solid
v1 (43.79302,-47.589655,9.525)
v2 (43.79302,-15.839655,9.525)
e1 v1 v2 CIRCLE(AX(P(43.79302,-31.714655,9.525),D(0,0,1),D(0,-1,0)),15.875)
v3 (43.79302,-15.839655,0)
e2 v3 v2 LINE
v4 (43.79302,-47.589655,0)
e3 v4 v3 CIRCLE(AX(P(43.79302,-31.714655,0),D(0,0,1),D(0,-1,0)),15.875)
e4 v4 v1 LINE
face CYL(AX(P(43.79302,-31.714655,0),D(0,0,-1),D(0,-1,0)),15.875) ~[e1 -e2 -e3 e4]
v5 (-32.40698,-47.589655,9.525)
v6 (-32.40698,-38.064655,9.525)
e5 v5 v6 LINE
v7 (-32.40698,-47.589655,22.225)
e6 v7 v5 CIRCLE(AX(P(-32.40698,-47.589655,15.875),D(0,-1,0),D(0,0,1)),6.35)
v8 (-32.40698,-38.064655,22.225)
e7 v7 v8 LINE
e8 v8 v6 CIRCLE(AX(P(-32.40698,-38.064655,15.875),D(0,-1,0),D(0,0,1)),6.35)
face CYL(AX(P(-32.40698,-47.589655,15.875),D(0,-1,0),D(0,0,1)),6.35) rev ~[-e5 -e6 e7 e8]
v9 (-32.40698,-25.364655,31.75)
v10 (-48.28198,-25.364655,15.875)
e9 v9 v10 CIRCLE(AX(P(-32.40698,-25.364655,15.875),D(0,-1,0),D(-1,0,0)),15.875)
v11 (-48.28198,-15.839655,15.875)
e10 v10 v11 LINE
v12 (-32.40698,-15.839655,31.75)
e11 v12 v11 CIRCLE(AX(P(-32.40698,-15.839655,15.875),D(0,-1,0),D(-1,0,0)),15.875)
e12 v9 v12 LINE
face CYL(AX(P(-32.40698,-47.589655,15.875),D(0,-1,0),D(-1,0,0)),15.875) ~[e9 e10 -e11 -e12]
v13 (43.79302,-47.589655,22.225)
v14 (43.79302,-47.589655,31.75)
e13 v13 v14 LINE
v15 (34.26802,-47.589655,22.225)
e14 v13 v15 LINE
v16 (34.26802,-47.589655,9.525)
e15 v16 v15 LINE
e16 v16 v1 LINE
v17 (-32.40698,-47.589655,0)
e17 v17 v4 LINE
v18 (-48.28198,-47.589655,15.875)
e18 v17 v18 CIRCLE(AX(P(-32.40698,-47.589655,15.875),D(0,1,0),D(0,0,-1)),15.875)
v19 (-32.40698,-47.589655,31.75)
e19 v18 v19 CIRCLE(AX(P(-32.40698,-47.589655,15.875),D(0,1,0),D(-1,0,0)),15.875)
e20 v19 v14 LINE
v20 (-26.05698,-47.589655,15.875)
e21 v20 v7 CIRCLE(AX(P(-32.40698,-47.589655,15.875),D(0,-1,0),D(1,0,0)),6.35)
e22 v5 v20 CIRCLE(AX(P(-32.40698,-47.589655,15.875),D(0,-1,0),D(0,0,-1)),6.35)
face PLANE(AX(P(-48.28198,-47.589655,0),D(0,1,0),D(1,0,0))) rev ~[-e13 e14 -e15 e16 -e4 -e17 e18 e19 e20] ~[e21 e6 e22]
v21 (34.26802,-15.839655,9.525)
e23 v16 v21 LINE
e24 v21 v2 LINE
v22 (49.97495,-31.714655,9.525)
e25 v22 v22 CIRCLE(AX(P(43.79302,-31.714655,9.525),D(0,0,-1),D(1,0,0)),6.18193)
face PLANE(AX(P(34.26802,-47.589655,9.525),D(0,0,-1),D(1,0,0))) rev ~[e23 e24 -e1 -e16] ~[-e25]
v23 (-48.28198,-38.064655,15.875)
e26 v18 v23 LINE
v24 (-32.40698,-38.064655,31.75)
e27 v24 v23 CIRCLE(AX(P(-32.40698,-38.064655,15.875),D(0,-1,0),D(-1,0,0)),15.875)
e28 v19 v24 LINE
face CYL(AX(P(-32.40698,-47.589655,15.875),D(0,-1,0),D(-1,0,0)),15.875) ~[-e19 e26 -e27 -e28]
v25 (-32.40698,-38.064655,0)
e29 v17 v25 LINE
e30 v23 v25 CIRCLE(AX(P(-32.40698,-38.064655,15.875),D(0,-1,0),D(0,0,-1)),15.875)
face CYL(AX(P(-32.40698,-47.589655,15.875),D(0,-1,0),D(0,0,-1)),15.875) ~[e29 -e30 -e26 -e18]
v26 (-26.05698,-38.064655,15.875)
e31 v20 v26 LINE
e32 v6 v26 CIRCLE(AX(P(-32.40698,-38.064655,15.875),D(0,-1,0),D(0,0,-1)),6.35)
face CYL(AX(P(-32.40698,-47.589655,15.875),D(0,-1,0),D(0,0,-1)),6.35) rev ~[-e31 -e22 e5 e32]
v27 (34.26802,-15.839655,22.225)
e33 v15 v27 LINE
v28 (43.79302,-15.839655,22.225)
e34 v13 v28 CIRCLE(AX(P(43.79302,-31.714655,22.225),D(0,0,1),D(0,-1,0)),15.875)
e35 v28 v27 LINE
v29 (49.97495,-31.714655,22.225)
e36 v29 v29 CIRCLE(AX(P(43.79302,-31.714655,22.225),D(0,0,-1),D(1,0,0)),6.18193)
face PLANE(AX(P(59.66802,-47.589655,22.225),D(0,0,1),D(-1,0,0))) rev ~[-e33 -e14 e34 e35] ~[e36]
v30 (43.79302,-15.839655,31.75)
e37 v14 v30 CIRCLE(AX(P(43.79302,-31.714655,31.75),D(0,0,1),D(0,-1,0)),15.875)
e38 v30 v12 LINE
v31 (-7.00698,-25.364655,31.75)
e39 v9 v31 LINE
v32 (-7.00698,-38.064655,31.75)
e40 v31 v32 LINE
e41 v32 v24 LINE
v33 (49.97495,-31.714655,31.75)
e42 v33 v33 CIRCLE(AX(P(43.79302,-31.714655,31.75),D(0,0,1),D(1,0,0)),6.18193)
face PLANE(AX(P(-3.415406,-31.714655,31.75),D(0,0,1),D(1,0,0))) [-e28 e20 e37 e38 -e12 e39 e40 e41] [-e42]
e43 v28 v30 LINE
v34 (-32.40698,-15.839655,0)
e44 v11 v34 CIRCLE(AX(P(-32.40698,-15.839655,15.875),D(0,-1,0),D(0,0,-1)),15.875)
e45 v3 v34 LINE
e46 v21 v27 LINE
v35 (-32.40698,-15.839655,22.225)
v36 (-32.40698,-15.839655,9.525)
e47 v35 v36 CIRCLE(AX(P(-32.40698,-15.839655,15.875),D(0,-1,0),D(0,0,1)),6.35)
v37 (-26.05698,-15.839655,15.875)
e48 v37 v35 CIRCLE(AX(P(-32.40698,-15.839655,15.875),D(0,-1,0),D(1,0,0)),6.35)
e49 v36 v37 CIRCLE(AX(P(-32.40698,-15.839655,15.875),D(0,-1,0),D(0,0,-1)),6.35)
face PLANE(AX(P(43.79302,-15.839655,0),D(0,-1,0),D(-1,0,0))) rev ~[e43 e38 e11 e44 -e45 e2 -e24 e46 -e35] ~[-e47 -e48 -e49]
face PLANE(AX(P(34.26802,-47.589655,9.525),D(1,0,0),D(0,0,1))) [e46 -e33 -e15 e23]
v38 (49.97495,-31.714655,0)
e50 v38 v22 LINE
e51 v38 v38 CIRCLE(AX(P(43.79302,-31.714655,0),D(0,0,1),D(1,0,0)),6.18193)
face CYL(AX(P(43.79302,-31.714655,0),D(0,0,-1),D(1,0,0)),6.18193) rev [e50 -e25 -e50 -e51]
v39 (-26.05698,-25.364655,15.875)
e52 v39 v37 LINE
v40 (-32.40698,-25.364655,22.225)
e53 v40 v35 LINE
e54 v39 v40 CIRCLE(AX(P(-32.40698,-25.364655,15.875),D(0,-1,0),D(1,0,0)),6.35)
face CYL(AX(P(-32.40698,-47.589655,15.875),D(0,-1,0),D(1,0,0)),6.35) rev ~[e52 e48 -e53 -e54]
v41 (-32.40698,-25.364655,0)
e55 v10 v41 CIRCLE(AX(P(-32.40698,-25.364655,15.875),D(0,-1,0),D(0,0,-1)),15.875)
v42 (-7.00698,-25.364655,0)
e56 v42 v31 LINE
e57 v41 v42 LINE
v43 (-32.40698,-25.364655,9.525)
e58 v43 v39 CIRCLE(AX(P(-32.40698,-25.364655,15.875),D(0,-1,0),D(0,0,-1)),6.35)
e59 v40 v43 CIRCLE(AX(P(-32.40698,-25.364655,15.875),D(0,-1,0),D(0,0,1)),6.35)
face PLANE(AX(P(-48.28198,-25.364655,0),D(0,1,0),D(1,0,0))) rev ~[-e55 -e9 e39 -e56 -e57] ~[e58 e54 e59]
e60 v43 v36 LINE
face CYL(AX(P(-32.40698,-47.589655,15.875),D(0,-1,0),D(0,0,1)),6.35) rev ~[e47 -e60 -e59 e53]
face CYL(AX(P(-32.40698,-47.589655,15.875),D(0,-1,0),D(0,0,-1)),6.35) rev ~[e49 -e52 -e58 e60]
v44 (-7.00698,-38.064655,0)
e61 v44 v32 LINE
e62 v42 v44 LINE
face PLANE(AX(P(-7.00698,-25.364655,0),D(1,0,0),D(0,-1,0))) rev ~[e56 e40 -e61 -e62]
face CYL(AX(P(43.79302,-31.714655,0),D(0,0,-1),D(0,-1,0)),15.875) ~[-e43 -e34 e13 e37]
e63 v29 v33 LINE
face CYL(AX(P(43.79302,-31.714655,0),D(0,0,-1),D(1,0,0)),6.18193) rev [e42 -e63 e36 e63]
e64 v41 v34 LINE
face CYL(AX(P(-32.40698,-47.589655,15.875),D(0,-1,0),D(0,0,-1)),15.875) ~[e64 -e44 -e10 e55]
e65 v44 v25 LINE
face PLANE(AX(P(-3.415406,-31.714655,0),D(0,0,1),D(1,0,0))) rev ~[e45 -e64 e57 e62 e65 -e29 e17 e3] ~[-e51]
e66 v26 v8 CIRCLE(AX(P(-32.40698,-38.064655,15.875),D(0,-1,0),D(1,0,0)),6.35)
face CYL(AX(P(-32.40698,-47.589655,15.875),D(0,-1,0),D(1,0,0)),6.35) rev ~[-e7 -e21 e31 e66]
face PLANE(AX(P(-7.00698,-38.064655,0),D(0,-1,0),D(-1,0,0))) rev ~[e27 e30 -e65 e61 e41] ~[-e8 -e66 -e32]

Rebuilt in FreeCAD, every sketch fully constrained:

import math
import FreeCAD as App
import Part
import Sketcher
Q = App.Units.Quantity


def add_polygon(sketch, points):
    """Adds a closed chain of lines whose ends are joined by coincident constraints."""
    first, n = sketch.GeometryCount, len(points)
    for a, b in zip(points, points[1:] + points[:1]):
        sketch.addGeometry(Part.LineSegment(App.Vector(*a, 0), App.Vector(*b, 0)), False)
    for i in range(n):
        sketch.addConstraint(Sketcher.Constraint("Coincident", first + i, 2, first + (i + 1) % n, 1))

doc = App.newDocument("Part")
params = doc.addObject("Spreadsheet::Sheet", "Params")
for row, (alias, value) in enumerate([
    ("sketch1_height", "0.5 in"),
    ("sketch1_radius", "0.625 in"),
    ("sketch1_width", "3.625 in"),
    ("pad1_length", "1.25 in"),
    ("sketch2_radius", "0.25 in"),
    ("sketch3_width", "1 in"),
    ("sketch3_height", "0.5 in"),
    ("sketch4_radius", "0.625 in"),
], start=1):
    params.set(f"A{row}", alias)
    params.set(f"B{row}", "=" + value)
    params.setAlias(f"B{row}", alias)

body = doc.addObject("PartDesign::Body", "Body")

# Sketch on XY plane
sketch1 = doc.addObject("Sketcher::SketchObject", "Sketch")
body.addObject(sketch1)
sketch1.AttachmentSupport = (doc.XY_Plane, [""])
sketch1.MapMode = "FlatFace"
sketch1.addGeometry([
    Part.LineSegment(App.Vector(44, -16, 0), App.Vector(-48, -16, 0)),  # 0
    Part.LineSegment(App.Vector(-48, -16, 0), App.Vector(-48, -25, 0)),  # 1
    Part.LineSegment(App.Vector(-48, -25, 0), App.Vector(-7, -25, 0)),  # 2
    Part.LineSegment(App.Vector(-7, -25, 0), App.Vector(-7, -38, 0)),  # 3
    Part.LineSegment(App.Vector(-7, -38, 0), App.Vector(-48, -38, 0)),  # 4
    Part.LineSegment(App.Vector(-48, -38, 0), App.Vector(-48, -48, 0)),  # 5
    Part.LineSegment(App.Vector(-48, -48, 0), App.Vector(44, -48, 0)),  # 6
    Part.ArcOfCircle(Part.Circle(App.Vector(44, -32, 0), App.Vector(0, 0, 1), 16), math.radians(-90), math.radians(90)),  # 7
    Part.Circle(App.Vector(44, -32, 0), App.Vector(0, 0, 1), 6),  # 8
], False)
sketch1.addConstraint([
    Sketcher.Constraint("Coincident", 0, 2, 1, 1),
    Sketcher.Constraint("Coincident", 1, 2, 2, 1),
    Sketcher.Constraint("Coincident", 2, 2, 3, 1),
    Sketcher.Constraint("Coincident", 3, 2, 4, 1),
    Sketcher.Constraint("Coincident", 4, 2, 5, 1),
    Sketcher.Constraint("Coincident", 5, 2, 6, 1),
    Sketcher.Constraint("Tangent", 6, 2, 7, 1),
    Sketcher.Constraint("Tangent", 7, 2, 0, 1),
    Sketcher.Constraint("Horizontal", 0),
    Sketcher.Constraint("Vertical", 1),
    Sketcher.Constraint("Horizontal", 2),
    Sketcher.Constraint("Vertical", 3),
    Sketcher.Constraint("Horizontal", 4),
    Sketcher.Constraint("Vertical", 5),
    Sketcher.Constraint("Horizontal", 6),
    Sketcher.Constraint("Coincident", 8, 3, 7, 3),
    Sketcher.Constraint("Vertical", 1, 2, 4, 2),
    Sketcher.Constraint("Equal", 1, 5),
    Sketcher.Constraint("DistanceY", 3, 2, 3, 1, Q("0.5 in")),
    Sketcher.Constraint("Radius", 7, Q("0.625 in")),
    Sketcher.Constraint("DistanceX", 2, 2, 7, 3, Q("2 in")),
    Sketcher.Constraint("DistanceX", 0, 2, 0, 1, Q("3.625 in")),
    Sketcher.Constraint("Diameter", 8, Q("12.36386 mm")),
    Sketcher.Constraint("DistanceX", -1, 1, 7, 3, Q("43.79302 mm")),
    Sketcher.Constraint("DistanceY", 7, 3, -1, 1, Q("31.714655 mm")),
])
sketch1.setExpression("Constraints[18]", "Params.sketch1_height")
sketch1.setExpression("Constraints[19]", "Params.sketch1_radius")
sketch1.setExpression("Constraints[21]", "Params.sketch1_width")
pad1 = doc.addObject("PartDesign::Pad", "Pad")
body.addObject(pad1)
pad1.Profile = sketch1
pad1.setExpression("Length", "Params.pad1_length")

# Sketch on XZ plane
sketch2 = doc.addObject("Sketcher::SketchObject", "Sketch001")
body.addObject(sketch2)
sketch2.AttachmentSupport = (doc.XZ_Plane, [""])
sketch2.MapMode = "FlatFace"
sketch2.AttachmentOffset = App.Placement(App.Vector(0, 0, 47.589655), App.Rotation())
sketch2.addGeometry([
    Part.ArcOfCircle(Part.Circle(App.Vector(-32, 16, 0), App.Vector(0, 0, 1), 6), math.radians(90), math.radians(270)),
    Part.ArcOfCircle(Part.Circle(App.Vector(-32, 16, 0), App.Vector(0, 0, 1), 6), math.radians(-90), math.radians(0)),
    Part.ArcOfCircle(Part.Circle(App.Vector(-32, 16, 0), App.Vector(0, 0, 1), 6), math.radians(0), math.radians(90)),
], False)
sketch2.addConstraint([
    Sketcher.Constraint("Tangent", 0, 2, 1, 1),
    Sketcher.Constraint("Tangent", 1, 2, 2, 1),
    Sketcher.Constraint("Tangent", 2, 2, 0, 1),
    Sketcher.Constraint("Horizontal", 2, 3, 1, 2),
    Sketcher.Constraint("Vertical", 2, 3, 0, 2),
    Sketcher.Constraint("Vertical", 0, 2, 2, 2),
    Sketcher.Constraint("Radius", 0, Q("0.25 in")),
    Sketcher.Constraint("DistanceY", -1, 1, 0, 3, Q("0.625 in")),
    Sketcher.Constraint("DistanceX", 0, 3, -1, 1, Q("32.40698 mm")),
])
sketch2.setExpression("Constraints[6]", "Params.sketch2_radius")
pocket1 = doc.addObject("PartDesign::Pocket", "Pocket")
body.addObject(pocket1)
pocket1.Profile = sketch2
pocket1.Type = "ThroughAll"

# Sketch on XZ plane
sketch3 = doc.addObject("Sketcher::SketchObject", "Sketch002")
body.addObject(sketch3)
sketch3.AttachmentSupport = (doc.XZ_Plane, [""])
sketch3.MapMode = "FlatFace"
sketch3.AttachmentOffset = App.Placement(App.Vector(0, 0, 47.589655), App.Rotation())
add_polygon(sketch3, [(60, 10), (60, 22), (34, 22), (34, 10)])  # lines 0-3
sketch3.addConstraint([
    Sketcher.Constraint("Vertical", 0),
    Sketcher.Constraint("Horizontal", 1),
    Sketcher.Constraint("Vertical", 2),
    Sketcher.Constraint("Horizontal", 3),
    Sketcher.Constraint("DistanceX", 1, 2, 1, 1, Q("1 in")),
    Sketcher.Constraint("DistanceY", 0, 1, 0, 2, Q("0.5 in")),
    Sketcher.Constraint("DistanceY", -1, 1, 0, 2, Q("0.875 in")),
    Sketcher.Constraint("DistanceX", -1, 1, 0, 2, Q("59.66802 mm")),
])
sketch3.setExpression("Constraints[8]", "Params.sketch3_width")
sketch3.setExpression("Constraints[9]", "Params.sketch3_height")
pocket2 = doc.addObject("PartDesign::Pocket", "Pocket001")
body.addObject(pocket2)
pocket2.Profile = sketch3
pocket2.Type = "ThroughAll"

# Sketch on XZ plane
sketch4 = doc.addObject("Sketcher::SketchObject", "Sketch003")
body.addObject(sketch4)
sketch4.AttachmentSupport = (doc.XZ_Plane, [""])
sketch4.MapMode = "FlatFace"
sketch4.AttachmentOffset = App.Placement(App.Vector(0, 0, 47.589655), App.Rotation())
sketch4.addGeometry([
    Part.ArcOfCircle(Part.Circle(App.Vector(-32, 16, 0), App.Vector(0, 0, 1), 16), math.radians(90), math.radians(180)),  # 0
    Part.LineSegment(App.Vector(-32, 32, 0), App.Vector(-48, 32, 0)),  # 1
    Part.LineSegment(App.Vector(-48, 32, 0), App.Vector(-48, 16, 0)),  # 2
    Part.ArcOfCircle(Part.Circle(App.Vector(-32, 16, 0), App.Vector(0, 0, 1), 16), math.radians(180), math.radians(270)),  # 3
    Part.LineSegment(App.Vector(-48, 16, 0), App.Vector(-48, 0, 0)),  # 4
    Part.LineSegment(App.Vector(-48, 0, 0), App.Vector(-32, 0, 0)),  # 5
], False)
sketch4.addConstraint([
    Sketcher.Constraint("Tangent", 0, 1, 1, 1),
    Sketcher.Constraint("Coincident", 1, 2, 2, 1),
    Sketcher.Constraint("Tangent", 2, 2, 0, 2),
    Sketcher.Constraint("Tangent", 3, 1, 4, 1),
    Sketcher.Constraint("Coincident", 4, 2, 5, 1),
    Sketcher.Constraint("Tangent", 5, 2, 3, 2),
    Sketcher.Constraint("Horizontal", 1),
    Sketcher.Constraint("Vertical", 2),
    Sketcher.Constraint("Vertical", 4),
    Sketcher.Constraint("Horizontal", 5),
    Sketcher.Constraint("Coincident", 3, 3, 0, 3),
    Sketcher.Constraint("Equal", 0, 3),
    Sketcher.Constraint("PointOnObject", 4, 2, -1),
    Sketcher.Constraint("Radius", 0, Q("0.625 in")),
    Sketcher.Constraint("DistanceX", 0, 3, -1, 1, Q("32.40698 mm")),
])
sketch4.setExpression("Constraints[13]", "Params.sketch4_radius")
pocket3 = doc.addObject("PartDesign::Pocket", "Pocket002")
body.addObject(pocket3)
pocket3.Profile = sketch4
pocket3.Type = "ThroughAll"

doc.recompute()
